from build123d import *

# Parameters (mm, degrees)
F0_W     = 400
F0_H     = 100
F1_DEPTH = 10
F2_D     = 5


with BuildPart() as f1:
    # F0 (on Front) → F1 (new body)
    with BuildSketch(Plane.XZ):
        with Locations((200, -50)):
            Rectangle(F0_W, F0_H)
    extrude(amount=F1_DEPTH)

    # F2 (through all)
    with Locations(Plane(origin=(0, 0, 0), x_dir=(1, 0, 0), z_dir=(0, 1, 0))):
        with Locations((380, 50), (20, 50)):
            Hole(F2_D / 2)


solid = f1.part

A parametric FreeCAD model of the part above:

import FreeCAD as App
import Part
import Sketcher
from FreeCAD import Vector
Q = App.Units.Quantity


def add_polygon(sketch, points):
    """Adds a closed chain of lines whose ends are joined by coincident constraints."""
    first, n = sketch.GeometryCount, len(points)
    for a, b in zip(points, points[1:] + points[:1]):
        sketch.addGeometry(Part.LineSegment(App.Vector(*a, 0), App.Vector(*b, 0)), False)
    for i in range(n):
        sketch.addConstraint(Sketcher.Constraint("Coincident", first + i, 2, first + (i + 1) % n, 1))

doc = App.newDocument("Part")
body = doc.addObject("PartDesign::Body", "Body")

# Sketch on XZ plane
sketch1 = doc.addObject("Sketcher::SketchObject", "Sketch")
body.addObject(sketch1)
sketch1.AttachmentSupport = (doc.XZ_Plane, [""])
sketch1.MapMode = "FlatFace"
add_polygon(sketch1, [(0, 0), (0, -100), (400, -100), (400, 0)])  # lines 0-3
sketch1.addConstraint([
    Sketcher.Constraint("Vertical", 0),
    Sketcher.Constraint("Horizontal", 1),
    Sketcher.Constraint("Vertical", 2),
    Sketcher.Constraint("Horizontal", 3),
    Sketcher.Constraint("Coincident", 3, 2, -1, 1),
    Sketcher.Constraint("DistanceX", 1, 1, 1, 2, Q("400 mm")),
    Sketcher.Constraint("DistanceY", 0, 2, 0, 1, Q("100 mm")),
])
pad1 = doc.addObject("PartDesign::Pad", "Pad")
body.addObject(pad1)
pad1.Profile = sketch1
pad1.Length = 10

# Sketch on XZ plane
sketch2 = doc.addObject("Sketcher::SketchObject", "Sketch001")
body.addObject(sketch2)
sketch2.AttachmentSupport = (doc.XZ_Plane, [""])
sketch2.MapMode = "FlatFace"
sketch2.addGeometry([
    Part.Circle(Vector(380, -50, 0), Vector(0, 0, 1), 2.5),
    Part.Circle(Vector(20, -50, 0), Vector(0, 0, 1), 2.5),
], False)
sketch2.addConstraint([
    Sketcher.Constraint("Equal", 0, 1),
    Sketcher.Constraint("Horizontal", 0, 3, 1, 3),
    Sketcher.Constraint("Diameter", 0, Q("5 mm")),
    Sketcher.Constraint("DistanceX", -1, 1, 0, 3, Q("380 mm")),
    Sketcher.Constraint("DistanceY", 0, 3, -1, 1, Q("50 mm")),
    Sketcher.Constraint("DistanceX", -1, 1, 1, 3, Q("20 mm")),
])
doc.recompute()
hole = doc.addObject("PartDesign::Hole", "Hole")
body.addObject(hole)
hole.Profile = sketch2
hole.ThreadType = "None"
hole.Diameter = 5
hole.DepthType = "ThroughAll"
hole.Reversed = True

doc.recompute()
